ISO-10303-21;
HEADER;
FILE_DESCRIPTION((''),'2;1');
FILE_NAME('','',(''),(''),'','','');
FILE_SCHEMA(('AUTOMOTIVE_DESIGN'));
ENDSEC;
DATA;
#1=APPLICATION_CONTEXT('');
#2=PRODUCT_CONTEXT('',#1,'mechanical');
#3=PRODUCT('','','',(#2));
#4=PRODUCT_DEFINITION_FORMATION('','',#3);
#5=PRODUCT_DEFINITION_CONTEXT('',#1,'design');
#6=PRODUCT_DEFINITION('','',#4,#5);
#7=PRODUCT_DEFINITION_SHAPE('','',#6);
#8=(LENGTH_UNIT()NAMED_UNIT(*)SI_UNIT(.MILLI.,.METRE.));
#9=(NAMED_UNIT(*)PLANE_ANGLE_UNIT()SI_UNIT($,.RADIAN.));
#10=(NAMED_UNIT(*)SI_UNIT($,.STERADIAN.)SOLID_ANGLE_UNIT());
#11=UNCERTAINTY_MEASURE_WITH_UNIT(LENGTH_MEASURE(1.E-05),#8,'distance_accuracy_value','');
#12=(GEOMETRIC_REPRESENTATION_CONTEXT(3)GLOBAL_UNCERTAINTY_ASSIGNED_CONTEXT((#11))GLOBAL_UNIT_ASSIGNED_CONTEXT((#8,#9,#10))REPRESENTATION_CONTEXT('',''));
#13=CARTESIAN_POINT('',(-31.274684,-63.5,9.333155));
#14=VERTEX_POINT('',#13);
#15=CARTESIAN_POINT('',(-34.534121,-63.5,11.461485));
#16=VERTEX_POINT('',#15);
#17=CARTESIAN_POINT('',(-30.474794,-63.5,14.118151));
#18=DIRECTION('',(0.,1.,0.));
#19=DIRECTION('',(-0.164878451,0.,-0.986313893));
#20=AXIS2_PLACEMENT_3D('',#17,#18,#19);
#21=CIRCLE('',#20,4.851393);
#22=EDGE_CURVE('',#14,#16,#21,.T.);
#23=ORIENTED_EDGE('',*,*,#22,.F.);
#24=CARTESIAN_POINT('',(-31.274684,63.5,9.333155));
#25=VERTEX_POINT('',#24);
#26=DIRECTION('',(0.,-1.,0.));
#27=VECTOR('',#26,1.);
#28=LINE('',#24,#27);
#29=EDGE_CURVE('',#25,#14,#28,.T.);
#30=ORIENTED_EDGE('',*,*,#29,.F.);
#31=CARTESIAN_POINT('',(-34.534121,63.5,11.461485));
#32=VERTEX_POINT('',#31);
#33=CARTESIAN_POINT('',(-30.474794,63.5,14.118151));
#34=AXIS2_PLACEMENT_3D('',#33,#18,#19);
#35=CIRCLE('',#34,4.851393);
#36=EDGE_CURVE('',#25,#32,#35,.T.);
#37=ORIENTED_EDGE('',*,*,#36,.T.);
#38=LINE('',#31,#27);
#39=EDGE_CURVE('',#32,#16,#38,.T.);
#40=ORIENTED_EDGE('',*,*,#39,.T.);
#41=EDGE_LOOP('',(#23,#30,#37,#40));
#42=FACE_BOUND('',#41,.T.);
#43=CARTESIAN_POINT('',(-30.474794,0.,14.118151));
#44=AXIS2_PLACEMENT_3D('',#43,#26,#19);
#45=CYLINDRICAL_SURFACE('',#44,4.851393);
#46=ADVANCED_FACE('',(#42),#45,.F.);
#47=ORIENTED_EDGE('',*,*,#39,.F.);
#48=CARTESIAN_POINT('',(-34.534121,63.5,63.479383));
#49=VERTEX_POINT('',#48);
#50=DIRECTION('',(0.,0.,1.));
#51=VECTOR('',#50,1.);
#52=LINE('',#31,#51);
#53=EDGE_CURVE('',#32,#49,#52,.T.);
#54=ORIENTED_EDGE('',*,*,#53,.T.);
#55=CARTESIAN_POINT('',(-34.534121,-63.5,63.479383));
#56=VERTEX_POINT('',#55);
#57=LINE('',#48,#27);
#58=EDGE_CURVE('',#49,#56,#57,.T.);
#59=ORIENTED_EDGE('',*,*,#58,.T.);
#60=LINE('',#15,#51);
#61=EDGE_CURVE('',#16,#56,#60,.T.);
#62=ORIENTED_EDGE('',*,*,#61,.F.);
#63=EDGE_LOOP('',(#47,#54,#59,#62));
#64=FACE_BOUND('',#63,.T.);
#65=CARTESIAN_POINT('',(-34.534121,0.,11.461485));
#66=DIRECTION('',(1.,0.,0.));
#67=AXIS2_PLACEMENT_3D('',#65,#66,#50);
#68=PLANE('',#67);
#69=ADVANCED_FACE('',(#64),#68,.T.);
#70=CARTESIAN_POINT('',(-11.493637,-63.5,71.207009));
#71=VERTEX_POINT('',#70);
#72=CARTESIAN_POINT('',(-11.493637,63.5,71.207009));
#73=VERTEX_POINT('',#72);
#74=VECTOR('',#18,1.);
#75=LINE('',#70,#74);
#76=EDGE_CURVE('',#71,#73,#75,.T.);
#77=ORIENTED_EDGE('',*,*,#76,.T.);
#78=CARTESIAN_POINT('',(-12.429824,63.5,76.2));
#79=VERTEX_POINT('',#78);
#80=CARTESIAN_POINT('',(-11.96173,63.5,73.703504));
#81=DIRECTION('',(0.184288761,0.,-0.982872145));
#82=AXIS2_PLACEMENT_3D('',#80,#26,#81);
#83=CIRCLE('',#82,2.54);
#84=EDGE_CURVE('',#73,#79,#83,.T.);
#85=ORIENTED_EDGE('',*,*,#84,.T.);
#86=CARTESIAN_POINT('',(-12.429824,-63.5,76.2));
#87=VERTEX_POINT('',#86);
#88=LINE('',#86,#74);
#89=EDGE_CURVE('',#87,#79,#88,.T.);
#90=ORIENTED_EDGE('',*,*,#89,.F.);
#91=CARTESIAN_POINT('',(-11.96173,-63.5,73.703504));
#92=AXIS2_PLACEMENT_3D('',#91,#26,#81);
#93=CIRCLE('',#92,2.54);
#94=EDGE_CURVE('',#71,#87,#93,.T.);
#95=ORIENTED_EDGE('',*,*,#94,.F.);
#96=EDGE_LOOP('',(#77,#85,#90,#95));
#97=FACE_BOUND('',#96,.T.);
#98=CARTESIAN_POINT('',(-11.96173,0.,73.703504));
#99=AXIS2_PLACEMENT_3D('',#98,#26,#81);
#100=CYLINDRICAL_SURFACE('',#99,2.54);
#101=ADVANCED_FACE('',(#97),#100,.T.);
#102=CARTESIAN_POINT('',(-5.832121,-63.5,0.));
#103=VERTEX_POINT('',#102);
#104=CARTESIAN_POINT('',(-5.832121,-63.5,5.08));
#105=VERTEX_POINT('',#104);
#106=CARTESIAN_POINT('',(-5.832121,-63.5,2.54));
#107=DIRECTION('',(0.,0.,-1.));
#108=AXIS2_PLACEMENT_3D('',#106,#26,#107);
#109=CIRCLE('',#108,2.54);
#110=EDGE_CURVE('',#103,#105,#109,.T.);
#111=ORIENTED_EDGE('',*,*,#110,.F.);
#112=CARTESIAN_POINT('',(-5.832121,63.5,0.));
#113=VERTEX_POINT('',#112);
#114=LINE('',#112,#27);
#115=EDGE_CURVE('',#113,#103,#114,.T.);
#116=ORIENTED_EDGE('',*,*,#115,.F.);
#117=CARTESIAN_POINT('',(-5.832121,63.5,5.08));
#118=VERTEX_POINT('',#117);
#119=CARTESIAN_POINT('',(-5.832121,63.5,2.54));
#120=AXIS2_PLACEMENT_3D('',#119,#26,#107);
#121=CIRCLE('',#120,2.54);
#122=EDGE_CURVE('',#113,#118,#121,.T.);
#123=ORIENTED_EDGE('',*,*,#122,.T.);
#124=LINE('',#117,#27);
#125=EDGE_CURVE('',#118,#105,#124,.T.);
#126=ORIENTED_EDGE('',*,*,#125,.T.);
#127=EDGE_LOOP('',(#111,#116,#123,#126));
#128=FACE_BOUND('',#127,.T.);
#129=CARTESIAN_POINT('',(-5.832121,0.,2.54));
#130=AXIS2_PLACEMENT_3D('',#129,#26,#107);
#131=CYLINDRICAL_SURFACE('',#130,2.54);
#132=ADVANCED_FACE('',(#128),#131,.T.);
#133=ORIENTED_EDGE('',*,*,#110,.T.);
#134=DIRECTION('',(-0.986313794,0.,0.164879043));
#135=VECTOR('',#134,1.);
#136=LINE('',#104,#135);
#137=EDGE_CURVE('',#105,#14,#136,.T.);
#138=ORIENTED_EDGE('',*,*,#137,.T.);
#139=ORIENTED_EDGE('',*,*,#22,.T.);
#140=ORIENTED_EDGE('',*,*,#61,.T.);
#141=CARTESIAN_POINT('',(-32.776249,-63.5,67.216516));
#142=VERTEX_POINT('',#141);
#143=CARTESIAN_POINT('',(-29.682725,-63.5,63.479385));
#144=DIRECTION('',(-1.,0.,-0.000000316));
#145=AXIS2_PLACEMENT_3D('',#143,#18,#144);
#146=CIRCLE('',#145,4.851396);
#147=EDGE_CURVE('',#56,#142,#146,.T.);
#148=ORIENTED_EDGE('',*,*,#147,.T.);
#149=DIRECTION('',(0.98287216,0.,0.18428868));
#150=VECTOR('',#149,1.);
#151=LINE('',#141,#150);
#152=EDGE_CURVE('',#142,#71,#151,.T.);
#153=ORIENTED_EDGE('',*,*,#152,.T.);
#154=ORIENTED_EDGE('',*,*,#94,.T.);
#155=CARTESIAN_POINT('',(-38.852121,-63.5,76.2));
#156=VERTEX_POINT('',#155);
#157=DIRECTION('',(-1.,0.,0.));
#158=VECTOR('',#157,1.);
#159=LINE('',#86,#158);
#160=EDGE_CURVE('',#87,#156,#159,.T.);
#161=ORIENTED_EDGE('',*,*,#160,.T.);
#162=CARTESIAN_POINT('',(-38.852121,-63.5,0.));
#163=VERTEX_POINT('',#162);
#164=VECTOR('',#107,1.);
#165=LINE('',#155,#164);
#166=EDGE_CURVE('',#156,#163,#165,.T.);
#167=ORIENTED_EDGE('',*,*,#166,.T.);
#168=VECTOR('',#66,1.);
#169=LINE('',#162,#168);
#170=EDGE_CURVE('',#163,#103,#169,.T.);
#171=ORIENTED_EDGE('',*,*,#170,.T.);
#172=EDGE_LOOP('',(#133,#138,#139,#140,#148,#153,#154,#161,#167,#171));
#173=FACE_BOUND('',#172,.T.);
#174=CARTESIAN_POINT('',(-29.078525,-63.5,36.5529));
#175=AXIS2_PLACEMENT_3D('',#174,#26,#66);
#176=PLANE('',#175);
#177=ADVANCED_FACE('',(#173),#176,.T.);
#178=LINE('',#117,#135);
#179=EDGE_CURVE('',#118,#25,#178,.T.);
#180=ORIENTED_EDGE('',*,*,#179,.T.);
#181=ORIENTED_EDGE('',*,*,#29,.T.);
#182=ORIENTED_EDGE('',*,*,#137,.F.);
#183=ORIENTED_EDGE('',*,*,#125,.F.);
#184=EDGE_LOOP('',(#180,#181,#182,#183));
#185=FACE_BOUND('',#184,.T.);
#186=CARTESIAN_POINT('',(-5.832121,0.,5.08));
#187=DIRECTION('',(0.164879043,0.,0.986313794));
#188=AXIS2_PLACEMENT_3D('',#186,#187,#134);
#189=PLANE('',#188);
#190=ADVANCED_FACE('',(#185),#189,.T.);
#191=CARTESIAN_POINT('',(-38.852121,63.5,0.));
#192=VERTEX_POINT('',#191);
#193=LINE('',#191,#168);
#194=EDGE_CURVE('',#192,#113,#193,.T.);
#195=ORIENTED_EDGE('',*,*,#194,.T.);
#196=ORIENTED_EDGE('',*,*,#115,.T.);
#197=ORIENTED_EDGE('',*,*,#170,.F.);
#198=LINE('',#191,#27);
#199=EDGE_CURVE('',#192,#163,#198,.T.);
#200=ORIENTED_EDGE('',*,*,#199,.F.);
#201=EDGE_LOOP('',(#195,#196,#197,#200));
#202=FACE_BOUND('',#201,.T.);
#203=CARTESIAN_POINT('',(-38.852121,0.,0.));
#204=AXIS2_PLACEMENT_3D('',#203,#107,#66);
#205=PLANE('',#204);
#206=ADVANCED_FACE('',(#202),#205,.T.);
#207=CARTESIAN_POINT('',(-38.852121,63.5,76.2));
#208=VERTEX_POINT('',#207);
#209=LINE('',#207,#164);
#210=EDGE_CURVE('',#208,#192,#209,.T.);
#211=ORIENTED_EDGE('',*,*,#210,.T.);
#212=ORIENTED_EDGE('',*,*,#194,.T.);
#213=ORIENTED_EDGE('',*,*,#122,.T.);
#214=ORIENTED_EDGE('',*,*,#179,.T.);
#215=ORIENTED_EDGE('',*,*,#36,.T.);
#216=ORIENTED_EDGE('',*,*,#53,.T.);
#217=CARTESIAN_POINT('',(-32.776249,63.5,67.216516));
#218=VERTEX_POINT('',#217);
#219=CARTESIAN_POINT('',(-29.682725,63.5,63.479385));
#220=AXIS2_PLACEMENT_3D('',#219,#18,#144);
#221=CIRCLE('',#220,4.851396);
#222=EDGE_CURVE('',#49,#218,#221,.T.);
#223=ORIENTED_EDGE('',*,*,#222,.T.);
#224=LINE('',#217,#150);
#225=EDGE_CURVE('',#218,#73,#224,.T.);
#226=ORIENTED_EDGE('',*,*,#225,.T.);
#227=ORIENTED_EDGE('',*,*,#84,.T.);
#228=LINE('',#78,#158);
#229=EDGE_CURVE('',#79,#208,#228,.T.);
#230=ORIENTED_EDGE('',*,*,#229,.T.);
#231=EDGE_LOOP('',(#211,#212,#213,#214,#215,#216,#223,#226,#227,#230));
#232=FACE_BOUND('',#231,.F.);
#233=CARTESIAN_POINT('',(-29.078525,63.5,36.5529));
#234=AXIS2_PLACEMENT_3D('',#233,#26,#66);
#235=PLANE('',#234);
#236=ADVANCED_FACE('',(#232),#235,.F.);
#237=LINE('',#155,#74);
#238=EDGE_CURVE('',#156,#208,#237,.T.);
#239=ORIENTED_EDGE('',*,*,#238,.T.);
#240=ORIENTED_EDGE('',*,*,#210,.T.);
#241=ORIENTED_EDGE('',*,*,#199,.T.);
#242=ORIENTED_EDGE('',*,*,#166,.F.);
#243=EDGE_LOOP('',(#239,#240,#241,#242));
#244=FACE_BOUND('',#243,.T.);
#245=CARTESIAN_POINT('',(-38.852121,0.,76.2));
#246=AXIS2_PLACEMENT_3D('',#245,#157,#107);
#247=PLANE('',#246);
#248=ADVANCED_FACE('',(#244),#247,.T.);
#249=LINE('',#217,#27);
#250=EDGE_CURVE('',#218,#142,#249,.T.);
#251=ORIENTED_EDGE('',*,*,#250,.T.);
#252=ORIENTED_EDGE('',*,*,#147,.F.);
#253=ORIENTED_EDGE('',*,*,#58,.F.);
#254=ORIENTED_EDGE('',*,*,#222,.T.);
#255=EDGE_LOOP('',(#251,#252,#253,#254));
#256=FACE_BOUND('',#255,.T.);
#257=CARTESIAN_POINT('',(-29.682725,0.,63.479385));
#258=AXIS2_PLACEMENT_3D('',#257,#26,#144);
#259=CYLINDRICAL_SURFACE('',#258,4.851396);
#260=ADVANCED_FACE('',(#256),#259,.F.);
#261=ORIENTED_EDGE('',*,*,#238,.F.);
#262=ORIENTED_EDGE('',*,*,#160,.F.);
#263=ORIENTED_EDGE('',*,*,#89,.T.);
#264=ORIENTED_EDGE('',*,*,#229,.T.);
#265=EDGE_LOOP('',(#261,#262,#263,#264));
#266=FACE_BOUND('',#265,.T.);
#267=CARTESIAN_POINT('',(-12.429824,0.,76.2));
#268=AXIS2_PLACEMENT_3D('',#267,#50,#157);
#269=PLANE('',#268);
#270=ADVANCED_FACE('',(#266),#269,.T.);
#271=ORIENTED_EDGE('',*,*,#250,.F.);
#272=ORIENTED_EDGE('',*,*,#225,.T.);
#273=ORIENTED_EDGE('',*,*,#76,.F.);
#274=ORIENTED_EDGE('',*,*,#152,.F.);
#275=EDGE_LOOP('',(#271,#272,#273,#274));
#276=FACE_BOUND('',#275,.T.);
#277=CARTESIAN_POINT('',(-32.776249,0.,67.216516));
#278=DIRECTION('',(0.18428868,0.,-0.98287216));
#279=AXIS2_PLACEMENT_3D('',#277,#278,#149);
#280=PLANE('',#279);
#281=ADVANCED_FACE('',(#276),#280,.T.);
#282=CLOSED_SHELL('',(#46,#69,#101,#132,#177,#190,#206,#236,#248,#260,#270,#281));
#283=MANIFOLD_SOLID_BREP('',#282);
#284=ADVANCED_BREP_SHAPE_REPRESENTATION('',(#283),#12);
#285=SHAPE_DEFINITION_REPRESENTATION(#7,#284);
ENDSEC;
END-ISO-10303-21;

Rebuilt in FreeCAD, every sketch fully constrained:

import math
import FreeCAD as App
import Part
import Sketcher
Q = App.Units.Quantity

doc = App.newDocument("Part")
body = doc.addObject("PartDesign::Body", "Body")

sketch1 = body.newObject("Sketcher::SketchObject", "Sketch")
sketch1.AttachmentSupport = (doc.getObject("XZ_Plane"), [""])
sketch1.MapMode = "FlatFace"
sketch1.addGeometry([
    Part.LineSegment(App.Vector(-38.852121, 76.2, 0), App.Vector(-38.852121, 0, 0)),
    Part.LineSegment(App.Vector(-38.852121, 0, 0), App.Vector(-5.832121, 0, 0)),
    Part.ArcOfCircle(Part.Circle(App.Vector(-5.832121, 2.54, 0), App.Vector(0, 0, 1), 2.54), math.radians(-90), math.radians(90)),
    Part.LineSegment(App.Vector(-5.832121, 5.08, 0), App.Vector(-31.274684, 9.333155, 0)),
    Part.ArcOfCircle(Part.Circle(App.Vector(-30.474794, 14.118151, 0), App.Vector(0, 0, 1), 4.851393), math.radians(-146.79687), math.radians(-99.490174)),
    Part.LineSegment(App.Vector(-34.534121, 11.461485, 0), App.Vector(-34.534121, 63.479383, 0)),
    Part.ArcOfCircle(Part.Circle(App.Vector(-29.682725, 63.479385, 0), App.Vector(0, 0, 1), 4.851396), math.radians(129.617287), math.radians(180.000018)),
    Part.LineSegment(App.Vector(-32.776249, 67.216516, 0), App.Vector(-11.493637, 71.207009, 0)),
    Part.ArcOfCircle(Part.Circle(App.Vector(-11.96173, 73.703504, 0), App.Vector(0, 0, 1), 2.54), math.radians(-79.380332), math.radians(100.619668)),
    Part.LineSegment(App.Vector(-12.429824, 76.2, 0), App.Vector(-38.852121, 76.2, 0)),
], False)
sketch1.addConstraint([
    Sketcher.Constraint("Coincident", 0, 2, 1, 1),
    Sketcher.Constraint("Tangent", 1, 2, 2, 1),
    Sketcher.Constraint("Coincident", 2, 2, 3, 1),
    Sketcher.Constraint("Tangent", 3, 2, 4, 2),
    Sketcher.Constraint("Coincident", 4, 1, 5, 1),
    Sketcher.Constraint("Tangent", 5, 2, 6, 2),
    Sketcher.Constraint("Coincident", 6, 1, 7, 1),
    Sketcher.Constraint("Tangent", 7, 2, 8, 1),
    Sketcher.Constraint("Coincident", 8, 2, 9, 1),
    Sketcher.Constraint("Coincident", 9, 2, 0, 1),
    Sketcher.Constraint("Vertical", 0),
    Sketcher.Constraint("Horizontal", 1),
    Sketcher.Constraint("Vertical", 5),
    Sketcher.Constraint("Horizontal", 9),
    Sketcher.Constraint("Equal", 2, 8),
    Sketcher.Constraint("PointOnObject", 0, 2, -1),
    Sketcher.Constraint("Vertical", 1, 2, 2, 2),
    Sketcher.Constraint("Radius", 2, Q("0.1 in")),
    Sketcher.Constraint("DistanceY", 0, 2, 0, 1, Q("3 in")),
    Sketcher.Constraint("DistanceX", 1, 1, 1, 2, Q("1.3 in")),
    Sketcher.Constraint("Radius", 6, Q("0.1909998 in")),
    Sketcher.Constraint("DistanceX", 0, 2, 4, 1, Q("0.17 in")),
    Sketcher.Constraint("DistanceY", 5, 1, 5, 2, 52.017898),
    Sketcher.Constraint("Radius", 4, 4.851393),
    Sketcher.Constraint("DistanceX", 6, 3, 8, 2, 17.252901),
    Sketcher.Constraint("Distance", 7, 21.65349),
    Sketcher.Constraint("DistanceX", 2, 3, -1, 1, 5.832121),
    Sketcher.Constraint("DistanceY", -1, 1, 4, 3, 14.118151),
    Sketcher.Constraint("DistanceX", 8, 3, -1, 1, 11.96173),
    Sketcher.Constraint("DistanceX", 6, 1, -1, 1, 32.776249),
])
pad1 = body.newObject("PartDesign::Pad", "Pad")
pad1.Profile = sketch1
pad1.Length = Q("5 in")
pad1.Midplane = True

doc.recompute()
